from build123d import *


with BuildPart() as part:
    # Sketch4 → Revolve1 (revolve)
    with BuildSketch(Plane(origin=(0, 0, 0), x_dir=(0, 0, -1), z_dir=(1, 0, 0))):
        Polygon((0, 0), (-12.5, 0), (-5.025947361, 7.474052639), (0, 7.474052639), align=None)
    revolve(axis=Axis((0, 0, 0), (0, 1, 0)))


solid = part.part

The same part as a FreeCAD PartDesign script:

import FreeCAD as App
import Part
import Sketcher

V = App.Vector
Q = App.Units.Quantity


def add_polygon(sketch, points):
    """Adds a closed chain of lines whose ends are joined by coincident constraints."""
    first, n = sketch.GeometryCount, len(points)
    for a, b in zip(points, points[1:] + points[:1]):
        sketch.addGeometry(Part.LineSegment(App.Vector(*a, 0), App.Vector(*b, 0)), False)
    for i in range(n):
        sketch.addConstraint(Sketcher.Constraint("Coincident", first + i, 2, first + (i + 1) % n, 1))

doc = App.newDocument("Part")
params = doc.addObject("Spreadsheet::Sheet", "Params")
for row, (alias, value) in enumerate([
    ("sketch1_height", "12.5 mm"),
    ("revolution_angle", "360 deg"),
], start=1):
    params.set(f"A{row}", alias)
    params.set(f"B{row}", "=" + value)
    params.setAlias(f"B{row}", alias)

body = doc.addObject("PartDesign::Body", "Body")

# Sketch on YZ plane
sketch1 = doc.addObject("Sketcher::SketchObject", "Sketch")
body.addObject(sketch1)
sketch1.AttachmentSupport = (doc.YZ_Plane, [""])
sketch1.MapMode = "FlatFace"
add_polygon(sketch1, [(0, 12.5), (0, 0), (7.474053, 0), (7.474053, 5.025947)])  # lines 0-3
sketch1.addConstraint([
    Sketcher.Constraint("Vertical", 0),
    Sketcher.Constraint("Horizontal", 1),
    Sketcher.Constraint("Vertical", 2),
    Sketcher.Constraint("Coincident", 0, 2, -1, 1),
    Sketcher.Constraint("Angle", 3, Q("135 deg")),
    Sketcher.Constraint("DistanceY", 0, 2, 0, 1, 12.5),
    Sketcher.Constraint("DistanceX", 1, 1, 1, 2, 7.474053),
])
sketch1.setExpression("Constraints[9]", "Params.sketch1_height")
revolution = doc.addObject("PartDesign::Revolution", "Revolution")
body.addObject(revolution)
revolution.Profile = sketch1
revolution.ReferenceAxis = (sketch1, ["H_Axis"])
revolution.setExpression("Angle", "Params.revolution_angle")

doc.recompute()
